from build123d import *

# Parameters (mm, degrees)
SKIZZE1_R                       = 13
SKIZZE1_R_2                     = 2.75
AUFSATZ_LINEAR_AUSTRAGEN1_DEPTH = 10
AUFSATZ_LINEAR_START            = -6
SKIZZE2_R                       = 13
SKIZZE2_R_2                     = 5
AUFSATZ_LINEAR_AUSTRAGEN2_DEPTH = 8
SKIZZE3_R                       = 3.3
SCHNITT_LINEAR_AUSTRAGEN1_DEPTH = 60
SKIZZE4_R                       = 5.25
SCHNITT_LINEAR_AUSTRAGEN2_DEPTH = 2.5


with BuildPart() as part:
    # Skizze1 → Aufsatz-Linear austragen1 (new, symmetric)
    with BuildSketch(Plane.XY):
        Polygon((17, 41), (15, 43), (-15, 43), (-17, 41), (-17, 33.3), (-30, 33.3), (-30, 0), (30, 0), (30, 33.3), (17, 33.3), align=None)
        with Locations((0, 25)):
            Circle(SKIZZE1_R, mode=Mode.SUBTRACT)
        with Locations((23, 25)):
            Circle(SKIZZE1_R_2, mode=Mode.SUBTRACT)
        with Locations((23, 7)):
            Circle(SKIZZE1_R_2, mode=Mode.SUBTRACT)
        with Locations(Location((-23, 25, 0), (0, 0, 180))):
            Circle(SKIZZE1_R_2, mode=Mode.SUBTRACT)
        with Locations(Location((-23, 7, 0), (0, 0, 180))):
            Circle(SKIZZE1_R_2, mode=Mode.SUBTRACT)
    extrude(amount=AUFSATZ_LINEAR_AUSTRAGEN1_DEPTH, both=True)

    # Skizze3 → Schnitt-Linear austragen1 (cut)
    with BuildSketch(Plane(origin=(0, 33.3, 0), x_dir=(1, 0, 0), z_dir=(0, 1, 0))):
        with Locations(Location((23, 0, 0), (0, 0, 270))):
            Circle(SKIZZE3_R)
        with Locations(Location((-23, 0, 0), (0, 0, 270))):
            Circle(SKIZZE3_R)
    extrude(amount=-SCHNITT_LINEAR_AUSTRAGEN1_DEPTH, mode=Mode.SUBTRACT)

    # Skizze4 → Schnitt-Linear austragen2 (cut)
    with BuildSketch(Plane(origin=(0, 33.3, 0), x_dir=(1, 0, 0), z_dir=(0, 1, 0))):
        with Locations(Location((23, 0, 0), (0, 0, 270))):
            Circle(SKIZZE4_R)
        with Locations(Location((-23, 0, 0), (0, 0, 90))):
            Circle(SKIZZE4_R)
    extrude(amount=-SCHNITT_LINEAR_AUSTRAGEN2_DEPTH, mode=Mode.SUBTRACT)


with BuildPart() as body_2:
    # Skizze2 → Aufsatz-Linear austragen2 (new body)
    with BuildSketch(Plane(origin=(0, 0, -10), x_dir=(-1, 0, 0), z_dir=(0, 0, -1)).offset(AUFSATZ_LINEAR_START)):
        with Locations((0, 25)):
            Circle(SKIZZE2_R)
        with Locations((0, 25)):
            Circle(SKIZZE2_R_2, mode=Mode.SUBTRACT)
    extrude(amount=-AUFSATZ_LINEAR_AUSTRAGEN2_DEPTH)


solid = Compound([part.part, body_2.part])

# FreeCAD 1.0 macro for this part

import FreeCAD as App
import Part
import Sketcher

V = App.Vector


def add_polygon(sketch, points):
    """Adds a closed chain of lines whose ends are joined by coincident constraints."""
    first, n = sketch.GeometryCount, len(points)
    for a, b in zip(points, points[1:] + points[:1]):
        sketch.addGeometry(Part.LineSegment(App.Vector(*a, 0), App.Vector(*b, 0)), False)
    for i in range(n):
        sketch.addConstraint(Sketcher.Constraint("Coincident", first + i, 2, first + (i + 1) % n, 1))

doc = App.newDocument("Part")
params = doc.addObject("Spreadsheet::Sheet", "Params")
for row, (alias, value) in enumerate([
    ("sketch1_diameter", "26 mm"),
    ("sketch1_diameter2", "5.5 mm"),
    ("sketch1_width", "30 mm"),
    ("sketch1_width2", "13 mm"),
    ("sketch1_width3", "60 mm"),
    ("pad1_length", "20 mm"),
    ("sketch2_diameter", "6.6 mm"),
    ("pocket1_length", "60 mm"),
    ("sketch3_diameter", "10.5 mm"),
    ("pocket2_length", "2.5 mm"),
    ("sketch4_diameter", "26 mm"),
    ("sketch4_diameter2", "10 mm"),
    ("pad2_length", "8 mm"),
], start=1):
    params.set(f"A{row}", alias)
    params.set(f"B{row}", "=" + value)
    params.setAlias(f"B{row}", alias)

body = doc.addObject("PartDesign::Body", "Body")

# Sketch on XY plane
sketch1 = body.newObject("Sketcher::SketchObject", "Sketch")
sketch1.AttachmentSupport = (doc.getObject("XY_Plane"), [""])
sketch1.MapMode = "FlatFace"
add_polygon(sketch1, [(17, 41), (15, 43), (-15, 43), (-17, 41), (-17, 33.3), (-30, 33.3), (-30, 0), (30, 0), (30, 33.3), (17, 33.3)])  # lines 0-9
sketch1.addGeometry(Part.Circle(V(-23, 7, 0), V(0, 0, 1), 2.8), False)  # 10
sketch1.addGeometry(Part.Circle(V(23, 7, 0), V(0, 0, 1), 2.8), False)  # 11
sketch1.addGeometry(Part.Circle(V(-23, 25, 0), V(0, 0, 1), 2.8), False)  # 12
sketch1.addGeometry(Part.Circle(V(0, 25, 0), V(0, 0, 1), 13), False)  # 13
sketch1.addGeometry(Part.Circle(V(23, 25, 0), V(0, 0, 1), 2.8), False)  # 14
sketch1.addConstraint([
    Sketcher.Constraint("Horizontal", 1),
    Sketcher.Constraint("Vertical", 3),
    Sketcher.Constraint("Horizontal", 4),
    Sketcher.Constraint("Vertical", 5),
    Sketcher.Constraint("Horizontal", 6),
    Sketcher.Constraint("Vertical", 7),
    Sketcher.Constraint("Horizontal", 8),
    Sketcher.Constraint("Vertical", 9),
    Sketcher.Constraint("Equal", 10, 11),
    Sketcher.Constraint("Equal", 11, 12),
    Sketcher.Constraint("Equal", 12, 14),
    Sketcher.Constraint("Symmetric", 5, 2, 6, 2, -1, 1),
    Sketcher.Constraint("Symmetric", 10, 3, 11, 3, -2),
    Sketcher.Constraint("Symmetric", 12, 3, 14, 3, -2),
    Sketcher.Constraint("Symmetric", 3, 2, 8, 2, -2),
    Sketcher.Constraint("PointOnObject", 13, 3, -2),
    Sketcher.Constraint("Perpendicular", 0, 2),
    Sketcher.Constraint("Horizontal", 12, 3, 13, 3),
    Sketcher.Constraint("Horizontal", 2, 2, 9, 2),
    Sketcher.Constraint("Vertical", 10, 3, 12, 3),
    Sketcher.Constraint("Equal", 0, 2),
    Sketcher.Constraint("Diameter", 13, 26.0),
    Sketcher.Constraint("Diameter", 10, 5.5),
    Sketcher.Constraint("DistanceX", 1, 2, 1, 1, 30.0),
    Sketcher.Constraint("DistanceX", 4, 2, 4, 1, 13.0),
    Sketcher.Constraint("DistanceX", 6, 1, 6, 2, 60.0),
    Sketcher.Constraint("DistanceY", 3, 2, 3, 1, 7.7),
    Sketcher.Constraint("DistanceY", 5, 2, 5, 1, 33.3),
    Sketcher.Constraint("DistanceX", 10, 3, -1, 1, 23.0),
    Sketcher.Constraint("DistanceY", -1, 1, 10, 3, 7.0),
    Sketcher.Constraint("DistanceY", -1, 1, 12, 3, 25.0),
])
sketch1.setExpression("Constraints[31]", "Params.sketch1_diameter")
sketch1.setExpression("Constraints[32]", "Params.sketch1_diameter2")
sketch1.setExpression("Constraints[33]", "Params.sketch1_width")
sketch1.setExpression("Constraints[34]", "Params.sketch1_width2")
sketch1.setExpression("Constraints[35]", "Params.sketch1_width3")
pad1 = body.newObject("PartDesign::Pad", "Pad")
pad1.Profile = sketch1
pad1.setExpression("Length", "Params.pad1_length")
pad1.Midplane = True

# Sketch on XZ plane
sketch2 = body.newObject("Sketcher::SketchObject", "Sketch001")
sketch2.AttachmentSupport = (doc.getObject("XZ_Plane"), [""])
sketch2.MapMode = "FlatFace"
sketch2.AttachmentOffset = App.Placement(V(0, 0, -33.3), App.Rotation())
sketch2.addGeometry([
    Part.Circle(V(23, 0, 0), V(0, 0, 1), 3.3),
    Part.Circle(V(-23, 0, 0), V(0, 0, 1), 3.3),
], False)
sketch2.addConstraint([
    Sketcher.Constraint("Equal", 0, 1),
    Sketcher.Constraint("Symmetric", 0, 3, 1, 3, -1, 1),
    Sketcher.Constraint("PointOnObject", 0, 3, -1),
    Sketcher.Constraint("Diameter", 0, 6.6),
    Sketcher.Constraint("DistanceX", -1, 1, 0, 3, 23.0),
])
sketch2.setExpression("Constraints[3]", "Params.sketch2_diameter")
pocket1 = body.newObject("PartDesign::Pocket", "Pocket")
pocket1.Profile = sketch2
pocket1.setExpression("Length", "Params.pocket1_length")
pocket1.Reversed = True

# Sketch on XZ plane
sketch3 = body.newObject("Sketcher::SketchObject", "Sketch002")
sketch3.AttachmentSupport = (doc.getObject("XZ_Plane"), [""])
sketch3.MapMode = "FlatFace"
sketch3.AttachmentOffset = App.Placement(V(0, 0, -33.3), App.Rotation())
sketch3.addGeometry([
    Part.Circle(V(23, 0, 0), V(0, 0, 1), 5),
    Part.Circle(V(-23, 0, 0), V(0, 0, 1), 5),
], False)
sketch3.addConstraint([
    Sketcher.Constraint("Equal", 0, 1),
    Sketcher.Constraint("Symmetric", 0, 3, 1, 3, -1, 1),
    Sketcher.Constraint("PointOnObject", 0, 3, -1),
    Sketcher.Constraint("Diameter", 0, 10.5),
    Sketcher.Constraint("DistanceX", -1, 1, 0, 3, 23.0),
])
sketch3.setExpression("Constraints[3]", "Params.sketch3_diameter")
pocket2 = body.newObject("PartDesign::Pocket", "Pocket001")
pocket2.Profile = sketch3
pocket2.setExpression("Length", "Params.pocket2_length")
pocket2.Reversed = True
body2 = doc.addObject("PartDesign::Body", "Body001")

# Sketch on XY plane
sketch4 = body2.newObject("Sketcher::SketchObject", "Sketch003")
sketch4.AttachmentSupport = (doc.getObject("XY_Plane001"), [""])
sketch4.MapMode = "FlatFace"
sketch4.AttachmentOffset = App.Placement(V(0, 0, -4), App.Rotation())
sketch4.addGeometry([
    Part.Circle(V(0, 25, 0), V(0, 0, 1), 13),
    Part.Circle(V(0, 25, 0), V(0, 0, 1), 5),
], False)
sketch4.addConstraint([
    Sketcher.Constraint("Coincident", 1, 3, 0, 3),
    Sketcher.Constraint("PointOnObject", 0, 3, -2),
    Sketcher.Constraint("Diameter", 0, 26.0),
    Sketcher.Constraint("Diameter", 1, 10.0),
    Sketcher.Constraint("DistanceY", -1, 1, 0, 3, 25.0),
])
sketch4.setExpression("Constraints[2]", "Params.sketch4_diameter")
sketch4.setExpression("Constraints[3]", "Params.sketch4_diameter2")
pad2 = body2.newObject("PartDesign::Pad", "Pad001")
pad2.Profile = sketch4
pad2.setExpression("Length", "Params.pad2_length")

doc.recompute()
